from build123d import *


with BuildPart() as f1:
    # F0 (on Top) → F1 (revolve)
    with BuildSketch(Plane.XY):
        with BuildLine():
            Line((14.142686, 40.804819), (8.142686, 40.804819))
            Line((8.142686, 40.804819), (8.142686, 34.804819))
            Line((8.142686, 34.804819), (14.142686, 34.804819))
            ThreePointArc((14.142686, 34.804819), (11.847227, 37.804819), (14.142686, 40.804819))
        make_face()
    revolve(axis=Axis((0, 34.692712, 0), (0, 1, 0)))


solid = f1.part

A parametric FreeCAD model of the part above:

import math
import FreeCAD as App
import Part
import Sketcher

doc = App.newDocument("Part")
body = doc.addObject("PartDesign::Body", "Body")

# Sketch on XY plane
sketch1 = body.newObject("Sketcher::SketchObject", "Sketch")
sketch1.AttachmentSupport = (doc.getObject("XY_Plane"), [""])
sketch1.MapMode = "FlatFace"
sketch1.addGeometry([
    Part.LineSegment(App.Vector(14.1, 40.8, 0), App.Vector(8.1, 40.8, 0)),
    Part.LineSegment(App.Vector(8.1, 40.8, 0), App.Vector(8.1, 34.8, 0)),
    Part.LineSegment(App.Vector(8.1, 34.8, 0), App.Vector(14.1, 34.8, 0)),
    Part.ArcOfCircle(Part.Circle(App.Vector(15, 37.8, 0), App.Vector(0, 0, 1), 3.1), math.radians(105), math.radians(255)),
], False)
sketch1.addConstraint([
    Sketcher.Constraint("Coincident", 0, 2, 1, 1),
    Sketcher.Constraint("Coincident", 1, 2, 2, 1),
    Sketcher.Constraint("Coincident", 2, 2, 3, 2),
    Sketcher.Constraint("Coincident", 3, 1, 0, 1),
    Sketcher.Constraint("Horizontal", 0),
    Sketcher.Constraint("Vertical", 1),
    Sketcher.Constraint("Horizontal", 2),
    Sketcher.Constraint("Vertical", 2, 2, 3, 1),
    Sketcher.Constraint("Equal", 2, 1),
    Sketcher.Constraint("DistanceX", 0, 2, 0, 1, 6.0),
    Sketcher.Constraint("Radius", 3, 3.108122),
    Sketcher.Constraint("DistanceX", -1, 1, 3, 3, 14.955349),
    Sketcher.Constraint("DistanceY", -1, 1, 3, 3, 37.804819),
])
revolution = body.newObject("PartDesign::Revolution", "Revolution")
revolution.Profile = sketch1
revolution.ReferenceAxis = (sketch1, ["V_Axis"])
revolution.Angle = 360

doc.recompute()
